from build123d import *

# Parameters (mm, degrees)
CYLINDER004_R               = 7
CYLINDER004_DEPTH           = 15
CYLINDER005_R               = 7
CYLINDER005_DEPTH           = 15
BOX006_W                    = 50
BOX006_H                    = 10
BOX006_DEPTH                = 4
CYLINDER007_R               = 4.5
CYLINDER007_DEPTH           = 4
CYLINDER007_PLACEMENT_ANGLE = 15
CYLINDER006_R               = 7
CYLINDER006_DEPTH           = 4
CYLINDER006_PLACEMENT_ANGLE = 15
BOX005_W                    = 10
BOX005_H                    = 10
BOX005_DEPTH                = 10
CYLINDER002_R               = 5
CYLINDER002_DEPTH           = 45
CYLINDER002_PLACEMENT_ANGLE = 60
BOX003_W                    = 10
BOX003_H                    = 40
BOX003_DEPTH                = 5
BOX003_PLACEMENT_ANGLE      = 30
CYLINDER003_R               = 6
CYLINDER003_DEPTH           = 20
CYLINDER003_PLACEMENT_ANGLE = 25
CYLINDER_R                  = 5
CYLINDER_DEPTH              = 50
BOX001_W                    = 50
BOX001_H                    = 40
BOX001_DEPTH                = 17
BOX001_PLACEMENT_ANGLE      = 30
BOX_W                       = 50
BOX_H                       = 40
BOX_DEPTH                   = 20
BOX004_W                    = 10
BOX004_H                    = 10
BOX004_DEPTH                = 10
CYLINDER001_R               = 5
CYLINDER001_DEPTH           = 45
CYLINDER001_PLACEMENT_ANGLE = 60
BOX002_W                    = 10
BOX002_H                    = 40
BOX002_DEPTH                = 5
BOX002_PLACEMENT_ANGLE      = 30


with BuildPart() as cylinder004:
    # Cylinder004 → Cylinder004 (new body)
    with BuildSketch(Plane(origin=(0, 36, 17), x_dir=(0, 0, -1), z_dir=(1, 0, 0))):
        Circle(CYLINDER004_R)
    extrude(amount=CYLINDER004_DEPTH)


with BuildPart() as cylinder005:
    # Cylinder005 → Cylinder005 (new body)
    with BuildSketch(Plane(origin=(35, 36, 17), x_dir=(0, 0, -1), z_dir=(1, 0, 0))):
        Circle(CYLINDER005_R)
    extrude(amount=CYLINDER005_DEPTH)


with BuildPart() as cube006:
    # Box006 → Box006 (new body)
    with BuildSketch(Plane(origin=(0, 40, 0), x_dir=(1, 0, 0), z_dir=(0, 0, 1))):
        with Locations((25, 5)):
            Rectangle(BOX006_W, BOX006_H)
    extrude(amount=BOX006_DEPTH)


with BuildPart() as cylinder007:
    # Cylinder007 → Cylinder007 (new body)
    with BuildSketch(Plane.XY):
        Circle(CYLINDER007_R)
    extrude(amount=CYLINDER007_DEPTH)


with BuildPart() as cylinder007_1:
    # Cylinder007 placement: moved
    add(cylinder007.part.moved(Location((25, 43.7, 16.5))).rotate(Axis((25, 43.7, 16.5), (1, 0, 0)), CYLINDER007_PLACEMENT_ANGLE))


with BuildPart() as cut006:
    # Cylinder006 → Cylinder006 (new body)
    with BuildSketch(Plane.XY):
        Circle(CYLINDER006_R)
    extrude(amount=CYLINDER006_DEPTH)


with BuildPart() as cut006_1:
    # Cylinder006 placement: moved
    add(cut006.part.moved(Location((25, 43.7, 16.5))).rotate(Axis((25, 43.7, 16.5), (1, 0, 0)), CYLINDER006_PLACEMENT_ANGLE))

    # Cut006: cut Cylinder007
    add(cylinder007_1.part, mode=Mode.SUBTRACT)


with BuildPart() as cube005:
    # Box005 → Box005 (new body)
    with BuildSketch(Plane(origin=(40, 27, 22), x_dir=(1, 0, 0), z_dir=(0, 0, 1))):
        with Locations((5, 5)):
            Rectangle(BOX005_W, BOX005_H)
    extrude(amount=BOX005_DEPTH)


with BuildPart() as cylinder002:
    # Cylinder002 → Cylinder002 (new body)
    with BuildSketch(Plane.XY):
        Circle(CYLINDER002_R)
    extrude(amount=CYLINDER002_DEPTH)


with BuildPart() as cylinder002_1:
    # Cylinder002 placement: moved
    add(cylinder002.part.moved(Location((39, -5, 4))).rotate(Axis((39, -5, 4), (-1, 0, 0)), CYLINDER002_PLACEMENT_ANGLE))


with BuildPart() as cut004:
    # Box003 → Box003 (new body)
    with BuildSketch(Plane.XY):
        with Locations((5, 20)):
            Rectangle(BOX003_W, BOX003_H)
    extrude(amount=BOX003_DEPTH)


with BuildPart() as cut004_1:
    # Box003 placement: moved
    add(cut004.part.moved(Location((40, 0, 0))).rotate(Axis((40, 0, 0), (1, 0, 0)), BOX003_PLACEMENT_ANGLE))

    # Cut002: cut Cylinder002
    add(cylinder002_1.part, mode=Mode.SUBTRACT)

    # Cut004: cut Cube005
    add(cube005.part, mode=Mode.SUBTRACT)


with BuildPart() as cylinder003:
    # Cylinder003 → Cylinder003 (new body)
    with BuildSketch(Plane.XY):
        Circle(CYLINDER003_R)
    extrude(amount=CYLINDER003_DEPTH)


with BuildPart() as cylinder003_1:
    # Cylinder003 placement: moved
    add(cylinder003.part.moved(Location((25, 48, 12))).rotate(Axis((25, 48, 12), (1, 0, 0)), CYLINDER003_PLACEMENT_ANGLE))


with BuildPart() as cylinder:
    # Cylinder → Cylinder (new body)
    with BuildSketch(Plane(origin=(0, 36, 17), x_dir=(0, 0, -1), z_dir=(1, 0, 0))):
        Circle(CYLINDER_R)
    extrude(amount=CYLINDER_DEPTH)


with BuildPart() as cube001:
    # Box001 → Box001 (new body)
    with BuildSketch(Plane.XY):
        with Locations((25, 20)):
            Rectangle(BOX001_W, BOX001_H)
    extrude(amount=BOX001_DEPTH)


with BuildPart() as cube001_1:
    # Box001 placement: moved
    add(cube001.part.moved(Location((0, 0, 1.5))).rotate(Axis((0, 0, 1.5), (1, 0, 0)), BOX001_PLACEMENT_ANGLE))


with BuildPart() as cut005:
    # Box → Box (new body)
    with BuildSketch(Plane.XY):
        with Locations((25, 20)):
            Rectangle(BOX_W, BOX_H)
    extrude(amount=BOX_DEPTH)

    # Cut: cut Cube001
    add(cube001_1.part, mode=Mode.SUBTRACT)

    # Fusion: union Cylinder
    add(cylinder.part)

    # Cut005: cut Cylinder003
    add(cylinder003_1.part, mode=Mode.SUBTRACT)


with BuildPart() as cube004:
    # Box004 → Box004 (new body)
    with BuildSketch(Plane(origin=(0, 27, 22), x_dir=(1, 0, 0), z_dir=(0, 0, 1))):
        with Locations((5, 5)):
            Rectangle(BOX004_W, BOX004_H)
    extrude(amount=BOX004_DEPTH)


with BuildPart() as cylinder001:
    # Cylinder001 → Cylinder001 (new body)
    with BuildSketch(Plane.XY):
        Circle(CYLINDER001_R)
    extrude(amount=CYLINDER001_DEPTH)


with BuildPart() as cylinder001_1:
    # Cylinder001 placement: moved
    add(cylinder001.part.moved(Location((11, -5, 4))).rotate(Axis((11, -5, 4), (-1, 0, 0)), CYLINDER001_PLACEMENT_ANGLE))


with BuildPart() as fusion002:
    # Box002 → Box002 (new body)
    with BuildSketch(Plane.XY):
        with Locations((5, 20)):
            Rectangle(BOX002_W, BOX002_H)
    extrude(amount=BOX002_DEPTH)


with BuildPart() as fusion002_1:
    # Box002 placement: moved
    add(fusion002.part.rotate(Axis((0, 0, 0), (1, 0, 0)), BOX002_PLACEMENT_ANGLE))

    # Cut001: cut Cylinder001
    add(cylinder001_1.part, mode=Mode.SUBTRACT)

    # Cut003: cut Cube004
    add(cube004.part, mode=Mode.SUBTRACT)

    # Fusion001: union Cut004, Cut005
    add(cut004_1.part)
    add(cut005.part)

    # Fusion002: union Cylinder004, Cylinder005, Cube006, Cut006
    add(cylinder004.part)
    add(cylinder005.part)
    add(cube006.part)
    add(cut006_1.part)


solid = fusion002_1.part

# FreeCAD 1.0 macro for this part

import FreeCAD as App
import Part
import Sketcher

V = App.Vector
Q = App.Units.Quantity


def add_polygon(sketch, points):
    """Adds a closed chain of lines whose ends are joined by coincident constraints."""
    first, n = sketch.GeometryCount, len(points)
    for a, b in zip(points, points[1:] + points[:1]):
        sketch.addGeometry(Part.LineSegment(App.Vector(*a, 0), App.Vector(*b, 0)), False)
    for i in range(n):
        sketch.addConstraint(Sketcher.Constraint("Coincident", first + i, 2, first + (i + 1) % n, 1))

doc = App.newDocument("Part")
body = doc.addObject("PartDesign::Body", "Body")

# Sketch on YZ plane
sketch1 = body.newObject("Sketcher::SketchObject", "Sketch")
sketch1.AttachmentSupport = (doc.getObject("YZ_Plane"), [""])
sketch1.MapMode = "FlatFace"
sketch1.addGeometry(Part.Circle(V(36, 17, 0), V(0, 0, 1), 7), False)
sketch1.addConstraint([
    Sketcher.Constraint("Diameter", 0, Q("14 mm")),
    Sketcher.Constraint("DistanceX", -1, 1, 0, 3, Q("36 mm")),
    Sketcher.Constraint("DistanceY", -1, 1, 0, 3, Q("17 mm")),
])
pad1 = body.newObject("PartDesign::Pad", "Pad")
pad1.Profile = sketch1
pad1.Length = 15
body2 = doc.addObject("PartDesign::Body", "Body001")

# Sketch on YZ plane
sketch2 = body2.newObject("Sketcher::SketchObject", "Sketch001")
sketch2.AttachmentSupport = (doc.getObject("YZ_Plane001"), [""])
sketch2.MapMode = "FlatFace"
sketch2.AttachmentOffset = App.Placement(V(0, 0, 35), App.Rotation())
sketch2.addGeometry(Part.Circle(V(36, 17, 0), V(0, 0, 1), 7), False)
sketch2.addConstraint([
    Sketcher.Constraint("Diameter", 0, Q("14 mm")),
    Sketcher.Constraint("DistanceX", -1, 1, 0, 3, Q("36 mm")),
    Sketcher.Constraint("DistanceY", -1, 1, 0, 3, Q("17 mm")),
])
pad2 = body2.newObject("PartDesign::Pad", "Pad001")
pad2.Profile = sketch2
pad2.Length = 15
body3 = doc.addObject("PartDesign::Body", "Body002")

# Sketch on XY plane
sketch3 = body3.newObject("Sketcher::SketchObject", "Sketch002")
sketch3.AttachmentSupport = (doc.getObject("XY_Plane002"), [""])
sketch3.MapMode = "FlatFace"
add_polygon(sketch3, [(0, 50), (0, 40), (50, 40), (50, 50)])  # lines 0-3
sketch3.addConstraint([
    Sketcher.Constraint("Vertical", 0),
    Sketcher.Constraint("Horizontal", 1),
    Sketcher.Constraint("Vertical", 2),
    Sketcher.Constraint("Horizontal", 3),
    Sketcher.Constraint("PointOnObject", 0, 2, -2),
    Sketcher.Constraint("DistanceX", 1, 1, 1, 2, Q("50 mm")),
    Sketcher.Constraint("DistanceY", 0, 2, 0, 1, Q("10 mm")),
    Sketcher.Constraint("DistanceY", -1, 1, 0, 2, Q("40 mm")),
])
pad3 = body3.newObject("PartDesign::Pad", "Pad002")
pad3.Profile = sketch3
pad3.Length = 4
body4 = doc.addObject("PartDesign::Body", "Body003")

# Sketch on XY plane
sketch4 = body4.newObject("Sketcher::SketchObject", "Sketch003")
sketch4.AttachmentSupport = (doc.getObject("XY_Plane003"), [""])
sketch4.MapMode = "FlatFace"
sketch4.addGeometry(Part.Circle(V(0, 0, 0), V(0, 0, 1), 4.5), False)
sketch4.addConstraint([
    Sketcher.Constraint("Coincident", 0, 3, -1, 1),
    Sketcher.Constraint("Diameter", 0, Q("9 mm")),
])
pad4 = body4.newObject("PartDesign::Pad", "Pad003")
pad4.Profile = sketch4
pad4.Length = 4
body5 = doc.addObject("PartDesign::Body", "Body004")
doc.recompute()

body4.Placement = App.Placement(V(25, 43.7, 16.5), App.Rotation(V(1, 0, 0), 15))
boolean = body5.newObject("PartDesign::Boolean", "Boolean")
boolean.Type = "Fuse"
boolean.addObjects([body4])
body6 = doc.addObject("PartDesign::Body", "Body005")

# Sketch on XY plane
sketch5 = body6.newObject("Sketcher::SketchObject", "Sketch004")
sketch5.AttachmentSupport = (doc.getObject("XY_Plane005"), [""])
sketch5.MapMode = "FlatFace"
sketch5.addGeometry(Part.Circle(V(0, 0, 0), V(0, 0, 1), 7), False)
sketch5.addConstraint([
    Sketcher.Constraint("Coincident", 0, 3, -1, 1),
    Sketcher.Constraint("Diameter", 0, Q("14 mm")),
])
pad5 = body6.newObject("PartDesign::Pad", "Pad004")
pad5.Profile = sketch5
pad5.Length = 4
body7 = doc.addObject("PartDesign::Body", "Body006")
doc.recompute()

body6.Placement = App.Placement(V(25, 43.7, 16.5), App.Rotation(V(1, 0, 0), 15))
boolean2 = body7.newObject("PartDesign::Boolean", "Boolean001")
boolean2.Type = "Fuse"
boolean2.addObjects([body6])
doc.recompute()

boolean3 = body7.newObject("PartDesign::Boolean", "Boolean002")
boolean3.Type = "Cut"
boolean3.addObjects([body5])
body8 = doc.addObject("PartDesign::Body", "Body007")

# Sketch on XY plane
sketch6 = body8.newObject("Sketcher::SketchObject", "Sketch005")
sketch6.AttachmentSupport = (doc.getObject("XY_Plane007"), [""])
sketch6.MapMode = "FlatFace"
sketch6.AttachmentOffset = App.Placement(V(0, 0, 22), App.Rotation())
add_polygon(sketch6, [(40, 37), (40, 27), (50, 27), (50, 37)])  # lines 0-3
sketch6.addConstraint([
    Sketcher.Constraint("Vertical", 0),
    Sketcher.Constraint("Horizontal", 1),
    Sketcher.Constraint("Vertical", 2),
    Sketcher.Constraint("Horizontal", 3),
    Sketcher.Constraint("Equal", 3, 0),
    Sketcher.Constraint("DistanceX", 1, 1, 1, 2, Q("10 mm")),
    Sketcher.Constraint("DistanceX", -1, 1, 0, 2, Q("40 mm")),
    Sketcher.Constraint("DistanceY", -1, 1, 0, 2, Q("27 mm")),
])
pad6 = body8.newObject("PartDesign::Pad", "Pad005")
pad6.Profile = sketch6
pad6.Length = 10
body9 = doc.addObject("PartDesign::Body", "Body008")

# Sketch on XY plane
sketch7 = body9.newObject("Sketcher::SketchObject", "Sketch006")
sketch7.AttachmentSupport = (doc.getObject("XY_Plane008"), [""])
sketch7.MapMode = "FlatFace"
sketch7.addGeometry(Part.Circle(V(0, 0, 0), V(0, 0, 1), 5), False)
sketch7.addConstraint([
    Sketcher.Constraint("Coincident", 0, 3, -1, 1),
    Sketcher.Constraint("Diameter", 0, Q("10 mm")),
])
pad7 = body9.newObject("PartDesign::Pad", "Pad006")
pad7.Profile = sketch7
pad7.Length = 45
body10 = doc.addObject("PartDesign::Body", "Body009")
doc.recompute()

body9.Placement = App.Placement(V(39, -5, 4), App.Rotation(V(-1, 0, 0), 60))
boolean4 = body10.newObject("PartDesign::Boolean", "Boolean003")
boolean4.Type = "Fuse"
boolean4.addObjects([body9])
body11 = doc.addObject("PartDesign::Body", "Body010")

# Sketch on XY plane
sketch8 = body11.newObject("Sketcher::SketchObject", "Sketch007")
sketch8.AttachmentSupport = (doc.getObject("XY_Plane010"), [""])
sketch8.MapMode = "FlatFace"
add_polygon(sketch8, [(0, 40), (0, 0), (10, 0), (10, 40)])  # lines 0-3
sketch8.addConstraint([
    Sketcher.Constraint("Vertical", 0),
    Sketcher.Constraint("Horizontal", 1),
    Sketcher.Constraint("Vertical", 2),
    Sketcher.Constraint("Horizontal", 3),
    Sketcher.Constraint("Coincident", 0, 2, -1, 1),
    Sketcher.Constraint("DistanceX", 1, 1, 1, 2, Q("10 mm")),
    Sketcher.Constraint("DistanceY", 0, 2, 0, 1, Q("40 mm")),
])
pad8 = body11.newObject("PartDesign::Pad", "Pad007")
pad8.Profile = sketch8
pad8.Length = 5
body12 = doc.addObject("PartDesign::Body", "Body011")
doc.recompute()

body11.Placement = App.Placement(V(40, 0, 0), App.Rotation(V(1, 0, 0), 30))
boolean5 = body12.newObject("PartDesign::Boolean", "Boolean004")
boolean5.Type = "Fuse"
boolean5.addObjects([body11])
doc.recompute()

boolean6 = body12.newObject("PartDesign::Boolean", "Boolean005")
boolean6.Type = "Cut"
boolean6.addObjects([body10])
doc.recompute()

boolean7 = body12.newObject("PartDesign::Boolean", "Boolean006")
boolean7.Type = "Cut"
boolean7.addObjects([body8])
body13 = doc.addObject("PartDesign::Body", "Body012")

# Sketch on XY plane
sketch9 = body13.newObject("Sketcher::SketchObject", "Sketch008")
sketch9.AttachmentSupport = (doc.getObject("XY_Plane012"), [""])
sketch9.MapMode = "FlatFace"
sketch9.addGeometry(Part.Circle(V(0, 0, 0), V(0, 0, 1), 6), False)
sketch9.addConstraint([
    Sketcher.Constraint("Coincident", 0, 3, -1, 1),
    Sketcher.Constraint("Diameter", 0, Q("12 mm")),
])
pad9 = body13.newObject("PartDesign::Pad", "Pad008")
pad9.Profile = sketch9
pad9.Length = 20
body14 = doc.addObject("PartDesign::Body", "Body013")
doc.recompute()

body13.Placement = App.Placement(V(25, 48, 12), App.Rotation(V(1, 0, 0), 25))
boolean8 = body14.newObject("PartDesign::Boolean", "Boolean007")
boolean8.Type = "Fuse"
boolean8.addObjects([body13])
body15 = doc.addObject("PartDesign::Body", "Body014")

# Sketch on YZ plane
sketch10 = body15.newObject("Sketcher::SketchObject", "Sketch009")
sketch10.AttachmentSupport = (doc.getObject("YZ_Plane014"), [""])
sketch10.MapMode = "FlatFace"
sketch10.addGeometry(Part.Circle(V(36, 17, 0), V(0, 0, 1), 5), False)
sketch10.addConstraint([
    Sketcher.Constraint("Diameter", 0, Q("10 mm")),
    Sketcher.Constraint("DistanceX", -1, 1, 0, 3, Q("36 mm")),
    Sketcher.Constraint("DistanceY", -1, 1, 0, 3, Q("17 mm")),
])
pad10 = body15.newObject("PartDesign::Pad", "Pad009")
pad10.Profile = sketch10
pad10.Length = 50
body16 = doc.addObject("PartDesign::Body", "Body015")

# Sketch on XY plane
sketch11 = body16.newObject("Sketcher::SketchObject", "Sketch010")
sketch11.AttachmentSupport = (doc.getObject("XY_Plane015"), [""])
sketch11.MapMode = "FlatFace"
add_polygon(sketch11, [(0, 40), (0, 0), (50, 0), (50, 40)])  # lines 0-3
sketch11.addConstraint([
    Sketcher.Constraint("Vertical", 0),
    Sketcher.Constraint("Horizontal", 1),
    Sketcher.Constraint("Vertical", 2),
    Sketcher.Constraint("Horizontal", 3),
    Sketcher.Constraint("Coincident", 0, 2, -1, 1),
    Sketcher.Constraint("DistanceX", 1, 1, 1, 2, Q("50 mm")),
    Sketcher.Constraint("DistanceY", 0, 2, 0, 1, Q("40 mm")),
])
pad11 = body16.newObject("PartDesign::Pad", "Pad010")
pad11.Profile = sketch11
pad11.Length = 17
body17 = doc.addObject("PartDesign::Body", "Body016")
doc.recompute()

body16.Placement = App.Placement(V(0, 0, 1.5), App.Rotation(V(1, 0, 0), 30))
boolean9 = body17.newObject("PartDesign::Boolean", "Boolean008")
boolean9.Type = "Fuse"
boolean9.addObjects([body16])
body18 = doc.addObject("PartDesign::Body", "Body017")

# Sketch on XY plane
sketch12 = body18.newObject("Sketcher::SketchObject", "Sketch011")
sketch12.AttachmentSupport = (doc.getObject("XY_Plane017"), [""])
sketch12.MapMode = "FlatFace"
add_polygon(sketch12, [(0, 40), (0, 0), (50, 0), (50, 40)])  # lines 0-3
sketch12.addConstraint([
    Sketcher.Constraint("Vertical", 0),
    Sketcher.Constraint("Horizontal", 1),
    Sketcher.Constraint("Vertical", 2),
    Sketcher.Constraint("Horizontal", 3),
    Sketcher.Constraint("Coincident", 0, 2, -1, 1),
    Sketcher.Constraint("DistanceX", 1, 1, 1, 2, Q("50 mm")),
    Sketcher.Constraint("DistanceY", 0, 2, 0, 1, Q("40 mm")),
])
pad12 = body18.newObject("PartDesign::Pad", "Pad011")
pad12.Profile = sketch12
pad12.Length = 20
doc.recompute()

boolean10 = body18.newObject("PartDesign::Boolean", "Boolean009")
boolean10.Type = "Cut"
boolean10.addObjects([body17])
doc.recompute()

boolean11 = body18.newObject("PartDesign::Boolean", "Boolean010")
boolean11.Type = "Fuse"
boolean11.addObjects([body15])
doc.recompute()

boolean12 = body18.newObject("PartDesign::Boolean", "Boolean011")
boolean12.Type = "Cut"
boolean12.addObjects([body14])
body19 = doc.addObject("PartDesign::Body", "Body018")

# Sketch on XY plane
sketch13 = body19.newObject("Sketcher::SketchObject", "Sketch012")
sketch13.AttachmentSupport = (doc.getObject("XY_Plane018"), [""])
sketch13.MapMode = "FlatFace"
sketch13.AttachmentOffset = App.Placement(V(0, 0, 22), App.Rotation())
add_polygon(sketch13, [(0, 37), (0, 27), (10, 27), (10, 37)])  # lines 0-3
sketch13.addConstraint([
    Sketcher.Constraint("Vertical", 0),
    Sketcher.Constraint("Horizontal", 1),
    Sketcher.Constraint("Vertical", 2),
    Sketcher.Constraint("Horizontal", 3),
    Sketcher.Constraint("PointOnObject", 0, 2, -2),
    Sketcher.Constraint("Equal", 3, 0),
    Sketcher.Constraint("DistanceX", 1, 1, 1, 2, Q("10 mm")),
    Sketcher.Constraint("DistanceY", -1, 1, 0, 2, Q("27 mm")),
])
pad13 = body19.newObject("PartDesign::Pad", "Pad012")
pad13.Profile = sketch13
pad13.Length = 10
body20 = doc.addObject("PartDesign::Body", "Body019")

# Sketch on XY plane
sketch14 = body20.newObject("Sketcher::SketchObject", "Sketch013")
sketch14.AttachmentSupport = (doc.getObject("XY_Plane019"), [""])
sketch14.MapMode = "FlatFace"
sketch14.addGeometry(Part.Circle(V(0, 0, 0), V(0, 0, 1), 5), False)
sketch14.addConstraint([
    Sketcher.Constraint("Coincident", 0, 3, -1, 1),
    Sketcher.Constraint("Diameter", 0, Q("10 mm")),
])
pad14 = body20.newObject("PartDesign::Pad", "Pad013")
pad14.Profile = sketch14
pad14.Length = 45
body21 = doc.addObject("PartDesign::Body", "Body020")
doc.recompute()

body20.Placement = App.Placement(V(11, -5, 4), App.Rotation(V(-1, 0, 0), 60))
boolean13 = body21.newObject("PartDesign::Boolean", "Boolean012")
boolean13.Type = "Fuse"
boolean13.addObjects([body20])
body22 = doc.addObject("PartDesign::Body", "Body021")

# Sketch on XY plane
sketch15 = body22.newObject("Sketcher::SketchObject", "Sketch014")
sketch15.AttachmentSupport = (doc.getObject("XY_Plane021"), [""])
sketch15.MapMode = "FlatFace"
add_polygon(sketch15, [(0, 40), (0, 0), (10, 0), (10, 40)])  # lines 0-3
sketch15.addConstraint([
    Sketcher.Constraint("Vertical", 0),
    Sketcher.Constraint("Horizontal", 1),
    Sketcher.Constraint("Vertical", 2),
    Sketcher.Constraint("Horizontal", 3),
    Sketcher.Constraint("Coincident", 0, 2, -1, 1),
    Sketcher.Constraint("DistanceX", 1, 1, 1, 2, Q("10 mm")),
    Sketcher.Constraint("DistanceY", 0, 2, 0, 1, Q("40 mm")),
])
pad15 = body22.newObject("PartDesign::Pad", "Pad014")
pad15.Profile = sketch15
pad15.Length = 5
body23 = doc.addObject("PartDesign::Body", "Body022")
body23.AllowCompound = True
doc.recompute()

body22.Placement = App.Placement(V(0, 0, 0), App.Rotation(V(1, 0, 0), 30))
boolean14 = body23.newObject("PartDesign::Boolean", "Boolean013")
boolean14.Type = "Fuse"
boolean14.addObjects([body22])
doc.recompute()

boolean15 = body23.newObject("PartDesign::Boolean", "Boolean014")
boolean15.Type = "Cut"
boolean15.addObjects([body21])
doc.recompute()

boolean16 = body23.newObject("PartDesign::Boolean", "Boolean015")
boolean16.Type = "Cut"
boolean16.addObjects([body19])
doc.recompute()

boolean17 = body23.newObject("PartDesign::Boolean", "Boolean016")
boolean17.Type = "Fuse"
boolean17.addObjects([body12])
doc.recompute()

boolean18 = body23.newObject("PartDesign::Boolean", "Boolean017")
boolean18.Type = "Fuse"
boolean18.addObjects([body18])
doc.recompute()

boolean19 = body23.newObject("PartDesign::Boolean", "Boolean018")
boolean19.Type = "Fuse"
boolean19.addObjects([body])
doc.recompute()

boolean20 = body23.newObject("PartDesign::Boolean", "Boolean019")
boolean20.Type = "Fuse"
boolean20.addObjects([body2])
doc.recompute()

boolean21 = body23.newObject("PartDesign::Boolean", "Boolean020")
boolean21.Type = "Fuse"
boolean21.addObjects([body3])
doc.recompute()

boolean22 = body23.newObject("PartDesign::Boolean", "Boolean021")
boolean22.Type = "Fuse"
boolean22.addObjects([body7])

doc.recompute()
